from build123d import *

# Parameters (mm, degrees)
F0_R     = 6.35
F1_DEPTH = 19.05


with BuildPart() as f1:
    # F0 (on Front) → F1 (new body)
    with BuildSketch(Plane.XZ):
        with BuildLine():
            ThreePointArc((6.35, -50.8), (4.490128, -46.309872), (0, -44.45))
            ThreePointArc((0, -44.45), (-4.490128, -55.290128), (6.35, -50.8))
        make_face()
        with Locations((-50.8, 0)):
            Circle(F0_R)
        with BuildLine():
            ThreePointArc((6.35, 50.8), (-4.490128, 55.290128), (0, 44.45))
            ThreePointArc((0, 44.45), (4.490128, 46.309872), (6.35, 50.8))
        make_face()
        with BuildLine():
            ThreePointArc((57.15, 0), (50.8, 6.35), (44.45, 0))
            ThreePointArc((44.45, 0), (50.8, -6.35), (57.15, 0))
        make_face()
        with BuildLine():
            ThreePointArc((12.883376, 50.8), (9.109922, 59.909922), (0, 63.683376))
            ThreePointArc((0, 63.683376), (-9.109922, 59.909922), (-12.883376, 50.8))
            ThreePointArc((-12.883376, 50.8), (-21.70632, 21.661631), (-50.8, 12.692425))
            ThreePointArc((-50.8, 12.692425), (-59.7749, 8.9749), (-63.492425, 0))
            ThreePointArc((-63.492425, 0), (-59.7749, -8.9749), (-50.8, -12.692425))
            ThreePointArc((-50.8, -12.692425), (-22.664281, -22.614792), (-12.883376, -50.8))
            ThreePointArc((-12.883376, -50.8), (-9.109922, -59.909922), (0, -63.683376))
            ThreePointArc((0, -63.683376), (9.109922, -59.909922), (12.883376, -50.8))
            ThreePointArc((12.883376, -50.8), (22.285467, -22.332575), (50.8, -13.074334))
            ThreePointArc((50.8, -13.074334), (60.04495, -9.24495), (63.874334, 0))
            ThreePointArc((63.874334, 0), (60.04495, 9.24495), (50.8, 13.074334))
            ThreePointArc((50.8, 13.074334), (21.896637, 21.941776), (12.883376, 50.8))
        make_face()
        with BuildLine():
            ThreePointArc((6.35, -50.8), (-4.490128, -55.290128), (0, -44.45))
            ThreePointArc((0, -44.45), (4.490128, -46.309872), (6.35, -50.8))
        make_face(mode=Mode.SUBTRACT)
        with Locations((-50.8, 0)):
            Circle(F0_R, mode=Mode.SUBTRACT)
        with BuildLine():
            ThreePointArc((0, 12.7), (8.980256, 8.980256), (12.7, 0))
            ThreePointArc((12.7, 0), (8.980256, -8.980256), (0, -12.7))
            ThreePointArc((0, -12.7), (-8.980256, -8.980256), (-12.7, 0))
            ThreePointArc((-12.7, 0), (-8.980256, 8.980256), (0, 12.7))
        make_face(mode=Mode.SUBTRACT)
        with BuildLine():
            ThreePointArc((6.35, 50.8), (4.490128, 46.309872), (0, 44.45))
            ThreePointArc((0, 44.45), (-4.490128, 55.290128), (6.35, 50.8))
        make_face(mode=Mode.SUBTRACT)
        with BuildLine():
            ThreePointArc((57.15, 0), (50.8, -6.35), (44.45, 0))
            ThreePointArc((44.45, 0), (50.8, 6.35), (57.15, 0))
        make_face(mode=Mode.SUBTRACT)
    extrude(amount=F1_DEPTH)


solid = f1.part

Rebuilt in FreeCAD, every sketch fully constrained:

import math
import FreeCAD as App
import Part
import Sketcher

V = App.Vector
Q = App.Units.Quantity

doc = App.newDocument("Part")
body = doc.addObject("PartDesign::Body", "Body")

# Sketch on XZ plane
sketch1 = doc.addObject("Sketcher::SketchObject", "Sketch")
body.addObject(sketch1)
sketch1.AttachmentSupport = (doc.XZ_Plane, [""])
sketch1.MapMode = "FlatFace"
sketch1.addGeometry(Part.ArcOfCircle(Part.Circle(V(0, 51, 0), V(0, 0, 1), 13), math.radians(0), math.radians(90)), False)
sketch1.addGeometry(Part.ArcOfCircle(Part.Circle(V(0, 51, 0), V(0, 0, 1), 13), math.radians(90), math.radians(180)), False)
sketch1.addGeometry(Part.ArcOfCircle(Part.Circle(V(-45, 45, 0), V(0, 0, 1), 32), math.radians(-101), math.radians(11)), False)
sketch1.addGeometry(Part.ArcOfCircle(Part.Circle(V(-51, 0, 0), V(0, 0, 1), 13), math.radians(90), math.radians(180)), False)
sketch1.addGeometry(Part.ArcOfCircle(Part.Circle(V(-51, 0, 0), V(0, 0, 1), 13), math.radians(180), math.radians(270)), False)
sketch1.addGeometry(Part.ArcOfCircle(Part.Circle(V(-47, -47, 0), V(0, 0, 1), 34), math.radians(-7), math.radians(96)), False)
sketch1.addGeometry(Part.ArcOfCircle(Part.Circle(V(0, -51, 0), V(0, 0, 1), 13), math.radians(-180), math.radians(-90)), False)
sketch1.addGeometry(Part.ArcOfCircle(Part.Circle(V(0, -51, 0), V(0, 0, 1), 13), math.radians(-90), math.radians(0)), False)
sketch1.addGeometry(Part.ArcOfCircle(Part.Circle(V(46, -46, 0), V(0, 0, 1), 33), math.radians(81), math.radians(189)), False)
sketch1.addGeometry(Part.ArcOfCircle(Part.Circle(V(51, 0, 0), V(0, 0, 1), 13), math.radians(-90), math.radians(0)), False)
sketch1.addGeometry(Part.ArcOfCircle(Part.Circle(V(51, 0, 0), V(0, 0, 1), 13), math.radians(0), math.radians(90)), False)
sketch1.addGeometry(Part.ArcOfCircle(Part.Circle(V(45, 45, 0), V(0, 0, 1), 32), math.radians(170), math.radians(281)), False)
sketch1.addGeometry(Part.Circle(V(-51, 0, 0), V(0, 0, 1), 6), False)
sketch1.addGeometry(Part.ArcOfCircle(Part.Circle(V(0, -51, 0), V(0, 0, 1), 6), math.radians(0), math.radians(90)), False)
sketch1.addGeometry(Part.ArcOfCircle(Part.Circle(V(0, -51, 0), V(0, 0, 1), 6), math.radians(90), math.radians(360)), False)
sketch1.addGeometry(Part.ArcOfCircle(Part.Circle(V(0, 0, 0), V(0, 0, 1), 13), math.radians(90), math.radians(180)), False)
sketch1.addGeometry(Part.ArcOfCircle(Part.Circle(V(0, 0, 0), V(0, 0, 1), 13), math.radians(0), math.radians(90)), False)
sketch1.addGeometry(Part.ArcOfCircle(Part.Circle(V(0, 0, 0), V(0, 0, 1), 13), math.radians(-90), math.radians(0)), False)
sketch1.addGeometry(Part.ArcOfCircle(Part.Circle(V(0, 0, 0), V(0, 0, 1), 13), math.radians(-180), math.radians(-90)), False)
sketch1.addGeometry(Part.Circle(V(51, 0, 0), V(0, 0, 1), 6), False)
sketch1.addGeometry(Part.ArcOfCircle(Part.Circle(V(0, 51, 0), V(0, 0, 1), 6), math.radians(0), math.radians(270)), False)
sketch1.addGeometry(Part.ArcOfCircle(Part.Circle(V(0, 51, 0), V(0, 0, 1), 6), math.radians(-90), math.radians(0)), False)
sketch1.addConstraint(Sketcher.Constraint("Tangent", 0, 2, 1, 1))
sketch1.addConstraint(Sketcher.Constraint("Coincident", 1, 2, 2, 2))
sketch1.addConstraint(Sketcher.Constraint("Coincident", 2, 1, 3, 1))
sketch1.addConstraint(Sketcher.Constraint("Tangent", 3, 2, 4, 1))
sketch1.addConstraint(Sketcher.Constraint("Coincident", 4, 2, 5, 2))
sketch1.addConstraint(Sketcher.Constraint("Coincident", 5, 1, 6, 1))
sketch1.addConstraint(Sketcher.Constraint("Tangent", 6, 2, 7, 1))
sketch1.addConstraint(Sketcher.Constraint("Coincident", 7, 2, 8, 2))
sketch1.addConstraint(Sketcher.Constraint("Coincident", 8, 1, 9, 1))
sketch1.addConstraint(Sketcher.Constraint("Tangent", 9, 2, 10, 1))
sketch1.addConstraint(Sketcher.Constraint("Coincident", 10, 2, 11, 2))
sketch1.addConstraint(Sketcher.Constraint("Coincident", 11, 1, 0, 1))
sketch1.addConstraint(Sketcher.Constraint("Tangent", 13, 1, 14, 2))
sketch1.addConstraint(Sketcher.Constraint("Coincident", 14, 1, 13, 2))
sketch1.addConstraint(Sketcher.Constraint("Tangent", 15, 1, 16, 2))
sketch1.addConstraint(Sketcher.Constraint("Tangent", 16, 1, 17, 2))
sketch1.addConstraint(Sketcher.Constraint("Tangent", 17, 1, 18, 2))
sketch1.addConstraint(Sketcher.Constraint("Tangent", 18, 1, 15, 2))
sketch1.addConstraint(Sketcher.Constraint("Tangent", 20, 1, 21, 2))
sketch1.addConstraint(Sketcher.Constraint("Coincident", 21, 1, 20, 2))
sketch1.addConstraint(Sketcher.Constraint("Coincident", 15, 3, -1, 1))
sketch1.addConstraint(Sketcher.Constraint("Coincident", 12, 3, 3, 3))
sketch1.addConstraint(Sketcher.Constraint("Coincident", 13, 3, 6, 3))
sketch1.addConstraint(Sketcher.Constraint("Coincident", 19, 3, 9, 3))
sketch1.addConstraint(Sketcher.Constraint("Coincident", 20, 3, 0, 3))
sketch1.addConstraint(Sketcher.Constraint("Equal", 0, 1))
sketch1.addConstraint(Sketcher.Constraint("Equal", 3, 4))
sketch1.addConstraint(Sketcher.Constraint("Equal", 1, 6))
sketch1.addConstraint(Sketcher.Constraint("Equal", 6, 7))
sketch1.addConstraint(Sketcher.Constraint("Equal", 9, 10))
sketch1.addConstraint(Sketcher.Constraint("Equal", 12, 13))
sketch1.addConstraint(Sketcher.Constraint("Equal", 15, 16))
sketch1.addConstraint(Sketcher.Constraint("Equal", 14, 19))
sketch1.addConstraint(Sketcher.Constraint("Equal", 19, 20))
sketch1.addConstraint(Sketcher.Constraint("Symmetric", 0, 3, 6, 3, -1, 1))
sketch1.addConstraint(Sketcher.Constraint("Symmetric", 3, 3, 9, 3, -1, 1))
sketch1.addConstraint(Sketcher.Constraint("Symmetric", 5, 1, 7, 2, -2))
sketch1.addConstraint(Sketcher.Constraint("Symmetric", 2, 1, 4, 2, -1))
sketch1.addConstraint(Sketcher.Constraint("PointOnObject", 0, 2, -2))
sketch1.addConstraint(Sketcher.Constraint("PointOnObject", 3, 2, -1))
sketch1.addConstraint(Sketcher.Constraint("PointOnObject", 6, 2, -2))
sketch1.addConstraint(Sketcher.Constraint("PointOnObject", 9, 2, -1))
sketch1.addConstraint(Sketcher.Constraint("PointOnObject", 14, 1, -2))
sketch1.addConstraint(Sketcher.Constraint("PointOnObject", 15, 1, -2))
sketch1.addConstraint(Sketcher.Constraint("PointOnObject", 16, 1, -1))
sketch1.addConstraint(Sketcher.Constraint("PointOnObject", 17, 1, -2))
sketch1.addConstraint(Sketcher.Constraint("PointOnObject", 18, 1, -1))
sketch1.addConstraint(Sketcher.Constraint("PointOnObject", 21, 1, -2))
sketch1.addConstraint(Sketcher.Constraint("Horizontal", 21, 3, 1, 2))
sketch1.addConstraint(Sketcher.Constraint("Horizontal", 14, 3, 5, 1))
sketch1.addConstraint(Sketcher.Constraint("Horizontal", 1, 2, 11, 1))
sketch1.addConstraint(Sketcher.Constraint("Horizontal", 7, 2, 13, 1))
sketch1.addConstraint(Sketcher.Constraint("Horizontal", 11, 1, 20, 1))
sketch1.addConstraint(Sketcher.Constraint("Vertical", 12, 3, 2, 1))
sketch1.addConstraint(Sketcher.Constraint("Vertical", 19, 3, 8, 1))
sketch1.addConstraint(Sketcher.Constraint("Vertical", 8, 1, 10, 2))
sketch1.addConstraint(Sketcher.Constraint("Diameter", 12, Q("0.5 in")))
sketch1.addConstraint(Sketcher.Constraint("Radius", 15, Q("0.5 in")))
sketch1.addConstraint(Sketcher.Constraint("DistanceY", -1, 1, 0, 3, Q("1.9999999 in")))
sketch1.addConstraint(Sketcher.Constraint("DistanceX", 3, 3, -1, 1, Q("2 in")))
sketch1.addConstraint(Sketcher.Constraint("Radius", 5, 34.37544))
sketch1.addConstraint(Sketcher.Constraint("Radius", 11, 32.412469))
sketch1.addConstraint(Sketcher.Constraint("Radius", 0, 12.883378))
sketch1.addConstraint(Sketcher.Constraint("Radius", 2, 32.413896))
sketch1.addConstraint(Sketcher.Constraint("Radius", 3, 12.692424))
sketch1.addConstraint(Sketcher.Constraint("Radius", 8, 33.168793))
sketch1.addConstraint(Sketcher.Constraint("Radius", 9, 13.074335))
pad1 = doc.addObject("PartDesign::Pad", "Pad")
body.addObject(pad1)
pad1.Profile = sketch1
pad1.Length = Q("0.75 in")

doc.recompute()
